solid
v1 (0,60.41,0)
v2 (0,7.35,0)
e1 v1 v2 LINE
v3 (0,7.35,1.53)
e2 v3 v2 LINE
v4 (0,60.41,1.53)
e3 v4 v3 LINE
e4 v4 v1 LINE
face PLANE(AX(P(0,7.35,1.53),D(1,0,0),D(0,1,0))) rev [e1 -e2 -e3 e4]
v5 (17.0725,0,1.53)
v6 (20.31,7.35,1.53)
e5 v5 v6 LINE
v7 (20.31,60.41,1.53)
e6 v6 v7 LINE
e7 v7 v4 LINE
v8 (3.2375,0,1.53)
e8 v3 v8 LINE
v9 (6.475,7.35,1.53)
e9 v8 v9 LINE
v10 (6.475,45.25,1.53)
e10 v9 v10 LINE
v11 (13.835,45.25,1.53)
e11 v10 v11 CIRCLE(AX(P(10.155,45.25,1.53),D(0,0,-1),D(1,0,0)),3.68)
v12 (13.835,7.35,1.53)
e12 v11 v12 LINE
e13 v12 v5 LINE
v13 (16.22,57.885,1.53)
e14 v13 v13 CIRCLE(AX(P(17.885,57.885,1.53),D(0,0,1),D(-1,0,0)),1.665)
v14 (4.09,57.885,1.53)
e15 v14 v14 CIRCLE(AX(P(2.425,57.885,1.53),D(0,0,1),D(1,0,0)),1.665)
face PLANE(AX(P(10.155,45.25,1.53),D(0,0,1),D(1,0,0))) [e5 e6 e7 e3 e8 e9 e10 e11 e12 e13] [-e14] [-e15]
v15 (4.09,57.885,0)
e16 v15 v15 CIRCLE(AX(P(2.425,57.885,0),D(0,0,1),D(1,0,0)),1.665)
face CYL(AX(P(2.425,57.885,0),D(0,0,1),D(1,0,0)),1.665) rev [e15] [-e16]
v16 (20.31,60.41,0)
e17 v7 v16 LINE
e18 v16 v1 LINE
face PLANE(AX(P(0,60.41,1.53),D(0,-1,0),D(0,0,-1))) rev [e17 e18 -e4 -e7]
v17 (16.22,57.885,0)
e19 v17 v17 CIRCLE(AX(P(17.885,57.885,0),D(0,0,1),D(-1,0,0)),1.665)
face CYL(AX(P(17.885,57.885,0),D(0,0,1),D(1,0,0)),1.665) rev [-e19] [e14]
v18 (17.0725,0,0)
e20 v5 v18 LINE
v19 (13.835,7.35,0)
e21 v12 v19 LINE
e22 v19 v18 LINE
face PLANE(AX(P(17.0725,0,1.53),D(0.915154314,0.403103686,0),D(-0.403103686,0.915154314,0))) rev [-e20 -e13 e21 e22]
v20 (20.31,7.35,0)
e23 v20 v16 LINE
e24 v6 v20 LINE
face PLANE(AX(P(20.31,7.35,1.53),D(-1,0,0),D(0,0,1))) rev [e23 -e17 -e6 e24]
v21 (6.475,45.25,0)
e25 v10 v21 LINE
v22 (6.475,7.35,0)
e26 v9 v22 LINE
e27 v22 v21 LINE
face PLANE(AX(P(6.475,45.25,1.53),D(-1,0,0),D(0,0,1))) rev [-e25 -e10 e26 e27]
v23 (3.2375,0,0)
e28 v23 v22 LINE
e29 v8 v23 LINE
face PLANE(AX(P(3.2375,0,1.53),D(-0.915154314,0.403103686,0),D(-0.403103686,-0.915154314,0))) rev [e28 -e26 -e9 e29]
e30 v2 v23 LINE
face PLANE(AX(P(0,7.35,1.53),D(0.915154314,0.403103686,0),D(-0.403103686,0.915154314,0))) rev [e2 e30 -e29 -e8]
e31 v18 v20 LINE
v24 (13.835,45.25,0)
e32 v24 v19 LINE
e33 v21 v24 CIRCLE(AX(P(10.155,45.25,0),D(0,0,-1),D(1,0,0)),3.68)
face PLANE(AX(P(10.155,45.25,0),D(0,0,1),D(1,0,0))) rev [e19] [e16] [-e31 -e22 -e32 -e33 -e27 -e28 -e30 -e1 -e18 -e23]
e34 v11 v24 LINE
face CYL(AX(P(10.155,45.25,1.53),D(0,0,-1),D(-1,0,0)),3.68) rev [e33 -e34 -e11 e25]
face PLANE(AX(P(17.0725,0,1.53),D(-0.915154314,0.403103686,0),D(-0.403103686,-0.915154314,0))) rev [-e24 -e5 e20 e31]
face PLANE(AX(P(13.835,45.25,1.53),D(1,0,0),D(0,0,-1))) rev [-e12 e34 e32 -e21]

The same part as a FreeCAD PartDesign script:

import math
import FreeCAD as App
import Part
import Sketcher

V = App.Vector
Q = App.Units.Quantity

doc = App.newDocument("Part")
body = doc.addObject("PartDesign::Body", "Body")

sketch1 = doc.addObject("Sketcher::SketchObject", "Sketch")
body.addObject(sketch1)
sketch1.AttachmentSupport = (doc.XY_Plane, [""])
sketch1.MapMode = "FlatFace"
sketch1.addGeometry(Part.LineSegment(V(0, 60.4, 0), V(0, 7.3, 0)), False)
sketch1.addGeometry(Part.LineSegment(V(0, 7.3, 0), V(3.2, 0, 0)), False)
sketch1.addGeometry(Part.LineSegment(V(3.2, 0, 0), V(6.5, 7.3, 0)), False)
sketch1.addGeometry(Part.LineSegment(V(6.5, 7.3, 0), V(6.5, 45.2, 0)), False)
sketch1.addGeometry(Part.ArcOfCircle(Part.Circle(V(10.2, 45.2, 0), V(0, 0, 1), 3.7), math.radians(0), math.radians(180)), False)
sketch1.addGeometry(Part.LineSegment(V(13.8, 45.2, 0), V(13.8, 7.3, 0)), False)
sketch1.addGeometry(Part.LineSegment(V(13.8, 7.3, 0), V(17.1, 0, 0)), False)
sketch1.addGeometry(Part.LineSegment(V(17.1, 0, 0), V(20.3, 7.3, 0)), False)
sketch1.addGeometry(Part.LineSegment(V(20.3, 7.3, 0), V(20.3, 60.4, 0)), False)
sketch1.addGeometry(Part.LineSegment(V(20.3, 60.4, 0), V(0, 60.4, 0)), False)
sketch1.addConstraint(Sketcher.Constraint("Coincident", 0, 2, 1, 1))
sketch1.addConstraint(Sketcher.Constraint("Coincident", 1, 2, 2, 1))
sketch1.addConstraint(Sketcher.Constraint("Coincident", 2, 2, 3, 1))
sketch1.addConstraint(Sketcher.Constraint("Tangent", 3, 2, 4, 2))
sketch1.addConstraint(Sketcher.Constraint("Tangent", 4, 1, 5, 1))
sketch1.addConstraint(Sketcher.Constraint("Coincident", 5, 2, 6, 1))
sketch1.addConstraint(Sketcher.Constraint("Coincident", 6, 2, 7, 1))
sketch1.addConstraint(Sketcher.Constraint("Coincident", 7, 2, 8, 1))
sketch1.addConstraint(Sketcher.Constraint("Coincident", 8, 2, 9, 1))
sketch1.addConstraint(Sketcher.Constraint("Coincident", 9, 2, 0, 1))
sketch1.addConstraint(Sketcher.Constraint("Vertical", 0))
sketch1.addConstraint(Sketcher.Constraint("Vertical", 3))
sketch1.addConstraint(Sketcher.Constraint("Vertical", 5))
sketch1.addConstraint(Sketcher.Constraint("Vertical", 8))
sketch1.addConstraint(Sketcher.Constraint("Horizontal", 9))
sketch1.addConstraint(Sketcher.Constraint("PointOnObject", 0, 2, -2))
sketch1.addConstraint(Sketcher.Constraint("PointOnObject", 1, 2, -1))
sketch1.addConstraint(Sketcher.Constraint("PointOnObject", 6, 2, -1))
sketch1.addConstraint(Sketcher.Constraint("Parallel", 1, 6))
sketch1.addConstraint(Sketcher.Constraint("Parallel", 2, 7))
sketch1.addConstraint(Sketcher.Constraint("Horizontal", 0, 2, 2, 2))
sketch1.addConstraint(Sketcher.Constraint("Horizontal", 2, 2, 5, 2))
sketch1.addConstraint(Sketcher.Constraint("Horizontal", 5, 2, 7, 2))
sketch1.addConstraint(Sketcher.Constraint("Equal", 1, 2))
sketch1.addConstraint(Sketcher.Constraint("Radius", 4, Q("3.68 mm")))
sketch1.addConstraint(Sketcher.Constraint("DistanceY", 3, 1, 3, 2, Q("37.9 mm")))
sketch1.addConstraint(Sketcher.Constraint("DistanceX", 9, 2, 9, 1, Q("20.31 mm")))
sketch1.addConstraint(Sketcher.Constraint("DistanceY", 0, 2, 0, 1, Q("53.06 mm")))
sketch1.addConstraint(Sketcher.Constraint("DistanceY", -1, 1, 4, 3, Q("45.25 mm")))
pad1 = doc.addObject("PartDesign::Pad", "Pad")
body.addObject(pad1)
pad1.Profile = sketch1
pad1.Length = 1.53

sketch2 = doc.addObject("Sketcher::SketchObject", "Sketch001")
body.addObject(sketch2)
sketch2.AttachmentSupport = (doc.XY_Plane, [""])
sketch2.MapMode = "FlatFace"
sketch2.AttachmentOffset = App.Placement(V(0, 0, 1.53), App.Rotation())
sketch2.addGeometry(Part.Circle(V(2.4, 57.9, 0), V(0, 0, 1), 1.7), False)
sketch2.addGeometry(Part.Circle(V(17.9, 57.9, 0), V(0, 0, 1), 1.7), False)
sketch2.addConstraint(Sketcher.Constraint("Equal", 0, 1))
sketch2.addConstraint(Sketcher.Constraint("Horizontal", 0, 3, 1, 3))
sketch2.addConstraint(Sketcher.Constraint("Diameter", 0, Q("3.33 mm")))
sketch2.addConstraint(Sketcher.Constraint("DistanceX", 0, 3, 1, 3, Q("15.46 mm")))
sketch2.addConstraint(Sketcher.Constraint("DistanceX", -1, 1, 0, 3, Q("2.425 mm")))
sketch2.addConstraint(Sketcher.Constraint("DistanceY", -1, 1, 0, 3, Q("57.885 mm")))
pocket1 = doc.addObject("PartDesign::Pocket", "Pocket")
body.addObject(pocket1)
pocket1.Profile = sketch2
pocket1.Length = 1.53

doc.recompute()
